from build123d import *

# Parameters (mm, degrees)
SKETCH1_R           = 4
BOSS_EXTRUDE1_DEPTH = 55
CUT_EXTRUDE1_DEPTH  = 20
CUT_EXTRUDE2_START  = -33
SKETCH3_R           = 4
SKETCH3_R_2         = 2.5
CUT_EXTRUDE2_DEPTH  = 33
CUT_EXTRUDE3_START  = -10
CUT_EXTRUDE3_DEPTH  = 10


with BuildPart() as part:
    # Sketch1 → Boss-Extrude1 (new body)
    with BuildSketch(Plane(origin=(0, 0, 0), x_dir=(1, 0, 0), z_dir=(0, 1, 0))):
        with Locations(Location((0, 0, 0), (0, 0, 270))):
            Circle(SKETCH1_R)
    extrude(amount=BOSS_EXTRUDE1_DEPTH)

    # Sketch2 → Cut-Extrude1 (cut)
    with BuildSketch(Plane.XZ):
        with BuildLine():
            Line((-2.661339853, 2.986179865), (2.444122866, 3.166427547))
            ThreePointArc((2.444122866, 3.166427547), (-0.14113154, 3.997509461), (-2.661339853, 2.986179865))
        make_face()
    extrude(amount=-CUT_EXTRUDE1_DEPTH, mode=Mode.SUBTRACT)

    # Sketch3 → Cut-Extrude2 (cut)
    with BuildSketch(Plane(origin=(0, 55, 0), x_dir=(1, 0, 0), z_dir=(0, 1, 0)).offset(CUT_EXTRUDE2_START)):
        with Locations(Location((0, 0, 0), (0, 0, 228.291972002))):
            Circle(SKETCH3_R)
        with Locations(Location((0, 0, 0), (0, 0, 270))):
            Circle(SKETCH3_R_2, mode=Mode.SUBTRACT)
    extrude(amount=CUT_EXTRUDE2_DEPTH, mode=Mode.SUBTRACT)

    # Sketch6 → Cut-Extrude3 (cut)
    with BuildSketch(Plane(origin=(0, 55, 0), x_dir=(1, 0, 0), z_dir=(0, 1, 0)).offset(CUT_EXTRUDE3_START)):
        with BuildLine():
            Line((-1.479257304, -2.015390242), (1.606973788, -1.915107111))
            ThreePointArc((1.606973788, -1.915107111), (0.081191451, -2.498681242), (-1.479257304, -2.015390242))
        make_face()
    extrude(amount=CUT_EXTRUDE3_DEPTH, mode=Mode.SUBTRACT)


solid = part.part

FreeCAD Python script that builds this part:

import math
import FreeCAD as App
import Part
import Sketcher
Q = App.Units.Quantity

doc = App.newDocument("Part")
params = doc.addObject("Spreadsheet::Sheet", "Params")
for row, (alias, value) in enumerate([
    ("sketch1_diameter", "8 mm"),
    ("pad1_length", "55 mm"),
    ("sketch2_radius", "4 mm"),
    ("pocket1_length", "20 mm"),
    ("sketch3_diameter", "8 mm"),
    ("sketch3_diameter2", "5 mm"),
    ("pocket2_length", "33 mm"),
    ("sketch4_radius", "2.5 mm"),
    ("pocket3_length", "10 mm"),
], start=1):
    params.set(f"A{row}", alias)
    params.set(f"B{row}", "=" + value)
    params.setAlias(f"B{row}", alias)

body = doc.addObject("PartDesign::Body", "Body")

sketch1 = body.newObject("Sketcher::SketchObject", "Sketch")
sketch1.AttachmentSupport = (doc.getObject("XZ_Plane"), [""])
sketch1.MapMode = "FlatFace"
sketch1.addGeometry(Part.Circle(App.Vector(0, 0, 0), App.Vector(0, 0, 1), 4), False)
sketch1.addConstraint([
    Sketcher.Constraint("Coincident", 0, 3, -1, 1),
    Sketcher.Constraint("Diameter", 0, Q("8 mm")),
])
sketch1.setExpression("Constraints[1]", "Params.sketch1_diameter")
pad1 = body.newObject("PartDesign::Pad", "Pad")
pad1.Profile = sketch1
pad1.setExpression("Length", "Params.pad1_length")
pad1.Reversed = True

sketch2 = body.newObject("Sketcher::SketchObject", "Sketch001")
sketch2.AttachmentSupport = (doc.getObject("XZ_Plane"), [""])
sketch2.MapMode = "FlatFace"
sketch2.addGeometry([
    Part.LineSegment(App.Vector(-2.7, 3, 0), App.Vector(2.4, 3.2, 0)),
    Part.ArcOfCircle(Part.Circle(App.Vector(0, 0, 0), App.Vector(0, 0, 1), 4), math.radians(52), math.radians(132)),
], False)
sketch2.addConstraint([
    Sketcher.Constraint("Coincident", 0, 1, 1, 2),
    Sketcher.Constraint("Coincident", 1, 1, 0, 2),
    Sketcher.Constraint("Coincident", 1, 3, -1, 1),
    Sketcher.Constraint("Radius", 1, Q("4 mm")),
    Sketcher.Constraint("DistanceX", 0, 1, -1, 1, Q("2.66134 mm")),
    Sketcher.Constraint("Distance", 0, Q("5.108644 mm")),
])
sketch2.setExpression("Constraints[3]", "Params.sketch2_radius")
pocket1 = body.newObject("PartDesign::Pocket", "Pocket")
pocket1.Profile = sketch2
pocket1.setExpression("Length", "Params.pocket1_length")

sketch3 = body.newObject("Sketcher::SketchObject", "Sketch002")
sketch3.AttachmentSupport = (doc.getObject("XZ_Plane"), [""])
sketch3.MapMode = "FlatFace"
sketch3.AttachmentOffset = App.Placement(App.Vector(0, 0, -22), App.Rotation())
sketch3.addGeometry([
    Part.Circle(App.Vector(0, 0, 0), App.Vector(0, 0, 1), 4),
    Part.Circle(App.Vector(0, 0, 0), App.Vector(0, 0, 1), 2.5),
], False)
sketch3.addConstraint([
    Sketcher.Constraint("Coincident", 0, 3, -1, 1),
    Sketcher.Constraint("Coincident", 1, 3, -1, 1),
    Sketcher.Constraint("Diameter", 0, Q("8 mm")),
    Sketcher.Constraint("Diameter", 1, Q("5 mm")),
])
sketch3.setExpression("Constraints[2]", "Params.sketch3_diameter")
sketch3.setExpression("Constraints[3]", "Params.sketch3_diameter2")
pocket2 = body.newObject("PartDesign::Pocket", "Pocket001")
pocket2.Profile = sketch3
pocket2.setExpression("Length", "Params.pocket2_length")

sketch4 = body.newObject("Sketcher::SketchObject", "Sketch003")
sketch4.AttachmentSupport = (doc.getObject("XZ_Plane"), [""])
sketch4.MapMode = "FlatFace"
sketch4.AttachmentOffset = App.Placement(App.Vector(0, 0, -45), App.Rotation())
sketch4.addGeometry([
    Part.LineSegment(App.Vector(1.6, 1.9, 0), App.Vector(-1.5, 2, 0)),
    Part.ArcOfCircle(Part.Circle(App.Vector(0, 0, 0), App.Vector(0, 0, 1), 2.5), math.radians(50), math.radians(126)),
], False)
sketch4.addConstraint([
    Sketcher.Constraint("Coincident", 0, 1, 1, 1),
    Sketcher.Constraint("Coincident", 1, 2, 0, 2),
    Sketcher.Constraint("Coincident", 1, 3, -1, 1),
    Sketcher.Constraint("Radius", 1, Q("2.5 mm")),
    Sketcher.Constraint("Distance", 0, Q("3.08786 mm")),
    Sketcher.Constraint("DistanceY", -1, 1, 1, 2, Q("2.01539 mm")),
])
sketch4.setExpression("Constraints[3]", "Params.sketch4_radius")
pocket3 = body.newObject("PartDesign::Pocket", "Pocket002")
pocket3.Profile = sketch4
pocket3.setExpression("Length", "Params.pocket3_length")

doc.recompute()
